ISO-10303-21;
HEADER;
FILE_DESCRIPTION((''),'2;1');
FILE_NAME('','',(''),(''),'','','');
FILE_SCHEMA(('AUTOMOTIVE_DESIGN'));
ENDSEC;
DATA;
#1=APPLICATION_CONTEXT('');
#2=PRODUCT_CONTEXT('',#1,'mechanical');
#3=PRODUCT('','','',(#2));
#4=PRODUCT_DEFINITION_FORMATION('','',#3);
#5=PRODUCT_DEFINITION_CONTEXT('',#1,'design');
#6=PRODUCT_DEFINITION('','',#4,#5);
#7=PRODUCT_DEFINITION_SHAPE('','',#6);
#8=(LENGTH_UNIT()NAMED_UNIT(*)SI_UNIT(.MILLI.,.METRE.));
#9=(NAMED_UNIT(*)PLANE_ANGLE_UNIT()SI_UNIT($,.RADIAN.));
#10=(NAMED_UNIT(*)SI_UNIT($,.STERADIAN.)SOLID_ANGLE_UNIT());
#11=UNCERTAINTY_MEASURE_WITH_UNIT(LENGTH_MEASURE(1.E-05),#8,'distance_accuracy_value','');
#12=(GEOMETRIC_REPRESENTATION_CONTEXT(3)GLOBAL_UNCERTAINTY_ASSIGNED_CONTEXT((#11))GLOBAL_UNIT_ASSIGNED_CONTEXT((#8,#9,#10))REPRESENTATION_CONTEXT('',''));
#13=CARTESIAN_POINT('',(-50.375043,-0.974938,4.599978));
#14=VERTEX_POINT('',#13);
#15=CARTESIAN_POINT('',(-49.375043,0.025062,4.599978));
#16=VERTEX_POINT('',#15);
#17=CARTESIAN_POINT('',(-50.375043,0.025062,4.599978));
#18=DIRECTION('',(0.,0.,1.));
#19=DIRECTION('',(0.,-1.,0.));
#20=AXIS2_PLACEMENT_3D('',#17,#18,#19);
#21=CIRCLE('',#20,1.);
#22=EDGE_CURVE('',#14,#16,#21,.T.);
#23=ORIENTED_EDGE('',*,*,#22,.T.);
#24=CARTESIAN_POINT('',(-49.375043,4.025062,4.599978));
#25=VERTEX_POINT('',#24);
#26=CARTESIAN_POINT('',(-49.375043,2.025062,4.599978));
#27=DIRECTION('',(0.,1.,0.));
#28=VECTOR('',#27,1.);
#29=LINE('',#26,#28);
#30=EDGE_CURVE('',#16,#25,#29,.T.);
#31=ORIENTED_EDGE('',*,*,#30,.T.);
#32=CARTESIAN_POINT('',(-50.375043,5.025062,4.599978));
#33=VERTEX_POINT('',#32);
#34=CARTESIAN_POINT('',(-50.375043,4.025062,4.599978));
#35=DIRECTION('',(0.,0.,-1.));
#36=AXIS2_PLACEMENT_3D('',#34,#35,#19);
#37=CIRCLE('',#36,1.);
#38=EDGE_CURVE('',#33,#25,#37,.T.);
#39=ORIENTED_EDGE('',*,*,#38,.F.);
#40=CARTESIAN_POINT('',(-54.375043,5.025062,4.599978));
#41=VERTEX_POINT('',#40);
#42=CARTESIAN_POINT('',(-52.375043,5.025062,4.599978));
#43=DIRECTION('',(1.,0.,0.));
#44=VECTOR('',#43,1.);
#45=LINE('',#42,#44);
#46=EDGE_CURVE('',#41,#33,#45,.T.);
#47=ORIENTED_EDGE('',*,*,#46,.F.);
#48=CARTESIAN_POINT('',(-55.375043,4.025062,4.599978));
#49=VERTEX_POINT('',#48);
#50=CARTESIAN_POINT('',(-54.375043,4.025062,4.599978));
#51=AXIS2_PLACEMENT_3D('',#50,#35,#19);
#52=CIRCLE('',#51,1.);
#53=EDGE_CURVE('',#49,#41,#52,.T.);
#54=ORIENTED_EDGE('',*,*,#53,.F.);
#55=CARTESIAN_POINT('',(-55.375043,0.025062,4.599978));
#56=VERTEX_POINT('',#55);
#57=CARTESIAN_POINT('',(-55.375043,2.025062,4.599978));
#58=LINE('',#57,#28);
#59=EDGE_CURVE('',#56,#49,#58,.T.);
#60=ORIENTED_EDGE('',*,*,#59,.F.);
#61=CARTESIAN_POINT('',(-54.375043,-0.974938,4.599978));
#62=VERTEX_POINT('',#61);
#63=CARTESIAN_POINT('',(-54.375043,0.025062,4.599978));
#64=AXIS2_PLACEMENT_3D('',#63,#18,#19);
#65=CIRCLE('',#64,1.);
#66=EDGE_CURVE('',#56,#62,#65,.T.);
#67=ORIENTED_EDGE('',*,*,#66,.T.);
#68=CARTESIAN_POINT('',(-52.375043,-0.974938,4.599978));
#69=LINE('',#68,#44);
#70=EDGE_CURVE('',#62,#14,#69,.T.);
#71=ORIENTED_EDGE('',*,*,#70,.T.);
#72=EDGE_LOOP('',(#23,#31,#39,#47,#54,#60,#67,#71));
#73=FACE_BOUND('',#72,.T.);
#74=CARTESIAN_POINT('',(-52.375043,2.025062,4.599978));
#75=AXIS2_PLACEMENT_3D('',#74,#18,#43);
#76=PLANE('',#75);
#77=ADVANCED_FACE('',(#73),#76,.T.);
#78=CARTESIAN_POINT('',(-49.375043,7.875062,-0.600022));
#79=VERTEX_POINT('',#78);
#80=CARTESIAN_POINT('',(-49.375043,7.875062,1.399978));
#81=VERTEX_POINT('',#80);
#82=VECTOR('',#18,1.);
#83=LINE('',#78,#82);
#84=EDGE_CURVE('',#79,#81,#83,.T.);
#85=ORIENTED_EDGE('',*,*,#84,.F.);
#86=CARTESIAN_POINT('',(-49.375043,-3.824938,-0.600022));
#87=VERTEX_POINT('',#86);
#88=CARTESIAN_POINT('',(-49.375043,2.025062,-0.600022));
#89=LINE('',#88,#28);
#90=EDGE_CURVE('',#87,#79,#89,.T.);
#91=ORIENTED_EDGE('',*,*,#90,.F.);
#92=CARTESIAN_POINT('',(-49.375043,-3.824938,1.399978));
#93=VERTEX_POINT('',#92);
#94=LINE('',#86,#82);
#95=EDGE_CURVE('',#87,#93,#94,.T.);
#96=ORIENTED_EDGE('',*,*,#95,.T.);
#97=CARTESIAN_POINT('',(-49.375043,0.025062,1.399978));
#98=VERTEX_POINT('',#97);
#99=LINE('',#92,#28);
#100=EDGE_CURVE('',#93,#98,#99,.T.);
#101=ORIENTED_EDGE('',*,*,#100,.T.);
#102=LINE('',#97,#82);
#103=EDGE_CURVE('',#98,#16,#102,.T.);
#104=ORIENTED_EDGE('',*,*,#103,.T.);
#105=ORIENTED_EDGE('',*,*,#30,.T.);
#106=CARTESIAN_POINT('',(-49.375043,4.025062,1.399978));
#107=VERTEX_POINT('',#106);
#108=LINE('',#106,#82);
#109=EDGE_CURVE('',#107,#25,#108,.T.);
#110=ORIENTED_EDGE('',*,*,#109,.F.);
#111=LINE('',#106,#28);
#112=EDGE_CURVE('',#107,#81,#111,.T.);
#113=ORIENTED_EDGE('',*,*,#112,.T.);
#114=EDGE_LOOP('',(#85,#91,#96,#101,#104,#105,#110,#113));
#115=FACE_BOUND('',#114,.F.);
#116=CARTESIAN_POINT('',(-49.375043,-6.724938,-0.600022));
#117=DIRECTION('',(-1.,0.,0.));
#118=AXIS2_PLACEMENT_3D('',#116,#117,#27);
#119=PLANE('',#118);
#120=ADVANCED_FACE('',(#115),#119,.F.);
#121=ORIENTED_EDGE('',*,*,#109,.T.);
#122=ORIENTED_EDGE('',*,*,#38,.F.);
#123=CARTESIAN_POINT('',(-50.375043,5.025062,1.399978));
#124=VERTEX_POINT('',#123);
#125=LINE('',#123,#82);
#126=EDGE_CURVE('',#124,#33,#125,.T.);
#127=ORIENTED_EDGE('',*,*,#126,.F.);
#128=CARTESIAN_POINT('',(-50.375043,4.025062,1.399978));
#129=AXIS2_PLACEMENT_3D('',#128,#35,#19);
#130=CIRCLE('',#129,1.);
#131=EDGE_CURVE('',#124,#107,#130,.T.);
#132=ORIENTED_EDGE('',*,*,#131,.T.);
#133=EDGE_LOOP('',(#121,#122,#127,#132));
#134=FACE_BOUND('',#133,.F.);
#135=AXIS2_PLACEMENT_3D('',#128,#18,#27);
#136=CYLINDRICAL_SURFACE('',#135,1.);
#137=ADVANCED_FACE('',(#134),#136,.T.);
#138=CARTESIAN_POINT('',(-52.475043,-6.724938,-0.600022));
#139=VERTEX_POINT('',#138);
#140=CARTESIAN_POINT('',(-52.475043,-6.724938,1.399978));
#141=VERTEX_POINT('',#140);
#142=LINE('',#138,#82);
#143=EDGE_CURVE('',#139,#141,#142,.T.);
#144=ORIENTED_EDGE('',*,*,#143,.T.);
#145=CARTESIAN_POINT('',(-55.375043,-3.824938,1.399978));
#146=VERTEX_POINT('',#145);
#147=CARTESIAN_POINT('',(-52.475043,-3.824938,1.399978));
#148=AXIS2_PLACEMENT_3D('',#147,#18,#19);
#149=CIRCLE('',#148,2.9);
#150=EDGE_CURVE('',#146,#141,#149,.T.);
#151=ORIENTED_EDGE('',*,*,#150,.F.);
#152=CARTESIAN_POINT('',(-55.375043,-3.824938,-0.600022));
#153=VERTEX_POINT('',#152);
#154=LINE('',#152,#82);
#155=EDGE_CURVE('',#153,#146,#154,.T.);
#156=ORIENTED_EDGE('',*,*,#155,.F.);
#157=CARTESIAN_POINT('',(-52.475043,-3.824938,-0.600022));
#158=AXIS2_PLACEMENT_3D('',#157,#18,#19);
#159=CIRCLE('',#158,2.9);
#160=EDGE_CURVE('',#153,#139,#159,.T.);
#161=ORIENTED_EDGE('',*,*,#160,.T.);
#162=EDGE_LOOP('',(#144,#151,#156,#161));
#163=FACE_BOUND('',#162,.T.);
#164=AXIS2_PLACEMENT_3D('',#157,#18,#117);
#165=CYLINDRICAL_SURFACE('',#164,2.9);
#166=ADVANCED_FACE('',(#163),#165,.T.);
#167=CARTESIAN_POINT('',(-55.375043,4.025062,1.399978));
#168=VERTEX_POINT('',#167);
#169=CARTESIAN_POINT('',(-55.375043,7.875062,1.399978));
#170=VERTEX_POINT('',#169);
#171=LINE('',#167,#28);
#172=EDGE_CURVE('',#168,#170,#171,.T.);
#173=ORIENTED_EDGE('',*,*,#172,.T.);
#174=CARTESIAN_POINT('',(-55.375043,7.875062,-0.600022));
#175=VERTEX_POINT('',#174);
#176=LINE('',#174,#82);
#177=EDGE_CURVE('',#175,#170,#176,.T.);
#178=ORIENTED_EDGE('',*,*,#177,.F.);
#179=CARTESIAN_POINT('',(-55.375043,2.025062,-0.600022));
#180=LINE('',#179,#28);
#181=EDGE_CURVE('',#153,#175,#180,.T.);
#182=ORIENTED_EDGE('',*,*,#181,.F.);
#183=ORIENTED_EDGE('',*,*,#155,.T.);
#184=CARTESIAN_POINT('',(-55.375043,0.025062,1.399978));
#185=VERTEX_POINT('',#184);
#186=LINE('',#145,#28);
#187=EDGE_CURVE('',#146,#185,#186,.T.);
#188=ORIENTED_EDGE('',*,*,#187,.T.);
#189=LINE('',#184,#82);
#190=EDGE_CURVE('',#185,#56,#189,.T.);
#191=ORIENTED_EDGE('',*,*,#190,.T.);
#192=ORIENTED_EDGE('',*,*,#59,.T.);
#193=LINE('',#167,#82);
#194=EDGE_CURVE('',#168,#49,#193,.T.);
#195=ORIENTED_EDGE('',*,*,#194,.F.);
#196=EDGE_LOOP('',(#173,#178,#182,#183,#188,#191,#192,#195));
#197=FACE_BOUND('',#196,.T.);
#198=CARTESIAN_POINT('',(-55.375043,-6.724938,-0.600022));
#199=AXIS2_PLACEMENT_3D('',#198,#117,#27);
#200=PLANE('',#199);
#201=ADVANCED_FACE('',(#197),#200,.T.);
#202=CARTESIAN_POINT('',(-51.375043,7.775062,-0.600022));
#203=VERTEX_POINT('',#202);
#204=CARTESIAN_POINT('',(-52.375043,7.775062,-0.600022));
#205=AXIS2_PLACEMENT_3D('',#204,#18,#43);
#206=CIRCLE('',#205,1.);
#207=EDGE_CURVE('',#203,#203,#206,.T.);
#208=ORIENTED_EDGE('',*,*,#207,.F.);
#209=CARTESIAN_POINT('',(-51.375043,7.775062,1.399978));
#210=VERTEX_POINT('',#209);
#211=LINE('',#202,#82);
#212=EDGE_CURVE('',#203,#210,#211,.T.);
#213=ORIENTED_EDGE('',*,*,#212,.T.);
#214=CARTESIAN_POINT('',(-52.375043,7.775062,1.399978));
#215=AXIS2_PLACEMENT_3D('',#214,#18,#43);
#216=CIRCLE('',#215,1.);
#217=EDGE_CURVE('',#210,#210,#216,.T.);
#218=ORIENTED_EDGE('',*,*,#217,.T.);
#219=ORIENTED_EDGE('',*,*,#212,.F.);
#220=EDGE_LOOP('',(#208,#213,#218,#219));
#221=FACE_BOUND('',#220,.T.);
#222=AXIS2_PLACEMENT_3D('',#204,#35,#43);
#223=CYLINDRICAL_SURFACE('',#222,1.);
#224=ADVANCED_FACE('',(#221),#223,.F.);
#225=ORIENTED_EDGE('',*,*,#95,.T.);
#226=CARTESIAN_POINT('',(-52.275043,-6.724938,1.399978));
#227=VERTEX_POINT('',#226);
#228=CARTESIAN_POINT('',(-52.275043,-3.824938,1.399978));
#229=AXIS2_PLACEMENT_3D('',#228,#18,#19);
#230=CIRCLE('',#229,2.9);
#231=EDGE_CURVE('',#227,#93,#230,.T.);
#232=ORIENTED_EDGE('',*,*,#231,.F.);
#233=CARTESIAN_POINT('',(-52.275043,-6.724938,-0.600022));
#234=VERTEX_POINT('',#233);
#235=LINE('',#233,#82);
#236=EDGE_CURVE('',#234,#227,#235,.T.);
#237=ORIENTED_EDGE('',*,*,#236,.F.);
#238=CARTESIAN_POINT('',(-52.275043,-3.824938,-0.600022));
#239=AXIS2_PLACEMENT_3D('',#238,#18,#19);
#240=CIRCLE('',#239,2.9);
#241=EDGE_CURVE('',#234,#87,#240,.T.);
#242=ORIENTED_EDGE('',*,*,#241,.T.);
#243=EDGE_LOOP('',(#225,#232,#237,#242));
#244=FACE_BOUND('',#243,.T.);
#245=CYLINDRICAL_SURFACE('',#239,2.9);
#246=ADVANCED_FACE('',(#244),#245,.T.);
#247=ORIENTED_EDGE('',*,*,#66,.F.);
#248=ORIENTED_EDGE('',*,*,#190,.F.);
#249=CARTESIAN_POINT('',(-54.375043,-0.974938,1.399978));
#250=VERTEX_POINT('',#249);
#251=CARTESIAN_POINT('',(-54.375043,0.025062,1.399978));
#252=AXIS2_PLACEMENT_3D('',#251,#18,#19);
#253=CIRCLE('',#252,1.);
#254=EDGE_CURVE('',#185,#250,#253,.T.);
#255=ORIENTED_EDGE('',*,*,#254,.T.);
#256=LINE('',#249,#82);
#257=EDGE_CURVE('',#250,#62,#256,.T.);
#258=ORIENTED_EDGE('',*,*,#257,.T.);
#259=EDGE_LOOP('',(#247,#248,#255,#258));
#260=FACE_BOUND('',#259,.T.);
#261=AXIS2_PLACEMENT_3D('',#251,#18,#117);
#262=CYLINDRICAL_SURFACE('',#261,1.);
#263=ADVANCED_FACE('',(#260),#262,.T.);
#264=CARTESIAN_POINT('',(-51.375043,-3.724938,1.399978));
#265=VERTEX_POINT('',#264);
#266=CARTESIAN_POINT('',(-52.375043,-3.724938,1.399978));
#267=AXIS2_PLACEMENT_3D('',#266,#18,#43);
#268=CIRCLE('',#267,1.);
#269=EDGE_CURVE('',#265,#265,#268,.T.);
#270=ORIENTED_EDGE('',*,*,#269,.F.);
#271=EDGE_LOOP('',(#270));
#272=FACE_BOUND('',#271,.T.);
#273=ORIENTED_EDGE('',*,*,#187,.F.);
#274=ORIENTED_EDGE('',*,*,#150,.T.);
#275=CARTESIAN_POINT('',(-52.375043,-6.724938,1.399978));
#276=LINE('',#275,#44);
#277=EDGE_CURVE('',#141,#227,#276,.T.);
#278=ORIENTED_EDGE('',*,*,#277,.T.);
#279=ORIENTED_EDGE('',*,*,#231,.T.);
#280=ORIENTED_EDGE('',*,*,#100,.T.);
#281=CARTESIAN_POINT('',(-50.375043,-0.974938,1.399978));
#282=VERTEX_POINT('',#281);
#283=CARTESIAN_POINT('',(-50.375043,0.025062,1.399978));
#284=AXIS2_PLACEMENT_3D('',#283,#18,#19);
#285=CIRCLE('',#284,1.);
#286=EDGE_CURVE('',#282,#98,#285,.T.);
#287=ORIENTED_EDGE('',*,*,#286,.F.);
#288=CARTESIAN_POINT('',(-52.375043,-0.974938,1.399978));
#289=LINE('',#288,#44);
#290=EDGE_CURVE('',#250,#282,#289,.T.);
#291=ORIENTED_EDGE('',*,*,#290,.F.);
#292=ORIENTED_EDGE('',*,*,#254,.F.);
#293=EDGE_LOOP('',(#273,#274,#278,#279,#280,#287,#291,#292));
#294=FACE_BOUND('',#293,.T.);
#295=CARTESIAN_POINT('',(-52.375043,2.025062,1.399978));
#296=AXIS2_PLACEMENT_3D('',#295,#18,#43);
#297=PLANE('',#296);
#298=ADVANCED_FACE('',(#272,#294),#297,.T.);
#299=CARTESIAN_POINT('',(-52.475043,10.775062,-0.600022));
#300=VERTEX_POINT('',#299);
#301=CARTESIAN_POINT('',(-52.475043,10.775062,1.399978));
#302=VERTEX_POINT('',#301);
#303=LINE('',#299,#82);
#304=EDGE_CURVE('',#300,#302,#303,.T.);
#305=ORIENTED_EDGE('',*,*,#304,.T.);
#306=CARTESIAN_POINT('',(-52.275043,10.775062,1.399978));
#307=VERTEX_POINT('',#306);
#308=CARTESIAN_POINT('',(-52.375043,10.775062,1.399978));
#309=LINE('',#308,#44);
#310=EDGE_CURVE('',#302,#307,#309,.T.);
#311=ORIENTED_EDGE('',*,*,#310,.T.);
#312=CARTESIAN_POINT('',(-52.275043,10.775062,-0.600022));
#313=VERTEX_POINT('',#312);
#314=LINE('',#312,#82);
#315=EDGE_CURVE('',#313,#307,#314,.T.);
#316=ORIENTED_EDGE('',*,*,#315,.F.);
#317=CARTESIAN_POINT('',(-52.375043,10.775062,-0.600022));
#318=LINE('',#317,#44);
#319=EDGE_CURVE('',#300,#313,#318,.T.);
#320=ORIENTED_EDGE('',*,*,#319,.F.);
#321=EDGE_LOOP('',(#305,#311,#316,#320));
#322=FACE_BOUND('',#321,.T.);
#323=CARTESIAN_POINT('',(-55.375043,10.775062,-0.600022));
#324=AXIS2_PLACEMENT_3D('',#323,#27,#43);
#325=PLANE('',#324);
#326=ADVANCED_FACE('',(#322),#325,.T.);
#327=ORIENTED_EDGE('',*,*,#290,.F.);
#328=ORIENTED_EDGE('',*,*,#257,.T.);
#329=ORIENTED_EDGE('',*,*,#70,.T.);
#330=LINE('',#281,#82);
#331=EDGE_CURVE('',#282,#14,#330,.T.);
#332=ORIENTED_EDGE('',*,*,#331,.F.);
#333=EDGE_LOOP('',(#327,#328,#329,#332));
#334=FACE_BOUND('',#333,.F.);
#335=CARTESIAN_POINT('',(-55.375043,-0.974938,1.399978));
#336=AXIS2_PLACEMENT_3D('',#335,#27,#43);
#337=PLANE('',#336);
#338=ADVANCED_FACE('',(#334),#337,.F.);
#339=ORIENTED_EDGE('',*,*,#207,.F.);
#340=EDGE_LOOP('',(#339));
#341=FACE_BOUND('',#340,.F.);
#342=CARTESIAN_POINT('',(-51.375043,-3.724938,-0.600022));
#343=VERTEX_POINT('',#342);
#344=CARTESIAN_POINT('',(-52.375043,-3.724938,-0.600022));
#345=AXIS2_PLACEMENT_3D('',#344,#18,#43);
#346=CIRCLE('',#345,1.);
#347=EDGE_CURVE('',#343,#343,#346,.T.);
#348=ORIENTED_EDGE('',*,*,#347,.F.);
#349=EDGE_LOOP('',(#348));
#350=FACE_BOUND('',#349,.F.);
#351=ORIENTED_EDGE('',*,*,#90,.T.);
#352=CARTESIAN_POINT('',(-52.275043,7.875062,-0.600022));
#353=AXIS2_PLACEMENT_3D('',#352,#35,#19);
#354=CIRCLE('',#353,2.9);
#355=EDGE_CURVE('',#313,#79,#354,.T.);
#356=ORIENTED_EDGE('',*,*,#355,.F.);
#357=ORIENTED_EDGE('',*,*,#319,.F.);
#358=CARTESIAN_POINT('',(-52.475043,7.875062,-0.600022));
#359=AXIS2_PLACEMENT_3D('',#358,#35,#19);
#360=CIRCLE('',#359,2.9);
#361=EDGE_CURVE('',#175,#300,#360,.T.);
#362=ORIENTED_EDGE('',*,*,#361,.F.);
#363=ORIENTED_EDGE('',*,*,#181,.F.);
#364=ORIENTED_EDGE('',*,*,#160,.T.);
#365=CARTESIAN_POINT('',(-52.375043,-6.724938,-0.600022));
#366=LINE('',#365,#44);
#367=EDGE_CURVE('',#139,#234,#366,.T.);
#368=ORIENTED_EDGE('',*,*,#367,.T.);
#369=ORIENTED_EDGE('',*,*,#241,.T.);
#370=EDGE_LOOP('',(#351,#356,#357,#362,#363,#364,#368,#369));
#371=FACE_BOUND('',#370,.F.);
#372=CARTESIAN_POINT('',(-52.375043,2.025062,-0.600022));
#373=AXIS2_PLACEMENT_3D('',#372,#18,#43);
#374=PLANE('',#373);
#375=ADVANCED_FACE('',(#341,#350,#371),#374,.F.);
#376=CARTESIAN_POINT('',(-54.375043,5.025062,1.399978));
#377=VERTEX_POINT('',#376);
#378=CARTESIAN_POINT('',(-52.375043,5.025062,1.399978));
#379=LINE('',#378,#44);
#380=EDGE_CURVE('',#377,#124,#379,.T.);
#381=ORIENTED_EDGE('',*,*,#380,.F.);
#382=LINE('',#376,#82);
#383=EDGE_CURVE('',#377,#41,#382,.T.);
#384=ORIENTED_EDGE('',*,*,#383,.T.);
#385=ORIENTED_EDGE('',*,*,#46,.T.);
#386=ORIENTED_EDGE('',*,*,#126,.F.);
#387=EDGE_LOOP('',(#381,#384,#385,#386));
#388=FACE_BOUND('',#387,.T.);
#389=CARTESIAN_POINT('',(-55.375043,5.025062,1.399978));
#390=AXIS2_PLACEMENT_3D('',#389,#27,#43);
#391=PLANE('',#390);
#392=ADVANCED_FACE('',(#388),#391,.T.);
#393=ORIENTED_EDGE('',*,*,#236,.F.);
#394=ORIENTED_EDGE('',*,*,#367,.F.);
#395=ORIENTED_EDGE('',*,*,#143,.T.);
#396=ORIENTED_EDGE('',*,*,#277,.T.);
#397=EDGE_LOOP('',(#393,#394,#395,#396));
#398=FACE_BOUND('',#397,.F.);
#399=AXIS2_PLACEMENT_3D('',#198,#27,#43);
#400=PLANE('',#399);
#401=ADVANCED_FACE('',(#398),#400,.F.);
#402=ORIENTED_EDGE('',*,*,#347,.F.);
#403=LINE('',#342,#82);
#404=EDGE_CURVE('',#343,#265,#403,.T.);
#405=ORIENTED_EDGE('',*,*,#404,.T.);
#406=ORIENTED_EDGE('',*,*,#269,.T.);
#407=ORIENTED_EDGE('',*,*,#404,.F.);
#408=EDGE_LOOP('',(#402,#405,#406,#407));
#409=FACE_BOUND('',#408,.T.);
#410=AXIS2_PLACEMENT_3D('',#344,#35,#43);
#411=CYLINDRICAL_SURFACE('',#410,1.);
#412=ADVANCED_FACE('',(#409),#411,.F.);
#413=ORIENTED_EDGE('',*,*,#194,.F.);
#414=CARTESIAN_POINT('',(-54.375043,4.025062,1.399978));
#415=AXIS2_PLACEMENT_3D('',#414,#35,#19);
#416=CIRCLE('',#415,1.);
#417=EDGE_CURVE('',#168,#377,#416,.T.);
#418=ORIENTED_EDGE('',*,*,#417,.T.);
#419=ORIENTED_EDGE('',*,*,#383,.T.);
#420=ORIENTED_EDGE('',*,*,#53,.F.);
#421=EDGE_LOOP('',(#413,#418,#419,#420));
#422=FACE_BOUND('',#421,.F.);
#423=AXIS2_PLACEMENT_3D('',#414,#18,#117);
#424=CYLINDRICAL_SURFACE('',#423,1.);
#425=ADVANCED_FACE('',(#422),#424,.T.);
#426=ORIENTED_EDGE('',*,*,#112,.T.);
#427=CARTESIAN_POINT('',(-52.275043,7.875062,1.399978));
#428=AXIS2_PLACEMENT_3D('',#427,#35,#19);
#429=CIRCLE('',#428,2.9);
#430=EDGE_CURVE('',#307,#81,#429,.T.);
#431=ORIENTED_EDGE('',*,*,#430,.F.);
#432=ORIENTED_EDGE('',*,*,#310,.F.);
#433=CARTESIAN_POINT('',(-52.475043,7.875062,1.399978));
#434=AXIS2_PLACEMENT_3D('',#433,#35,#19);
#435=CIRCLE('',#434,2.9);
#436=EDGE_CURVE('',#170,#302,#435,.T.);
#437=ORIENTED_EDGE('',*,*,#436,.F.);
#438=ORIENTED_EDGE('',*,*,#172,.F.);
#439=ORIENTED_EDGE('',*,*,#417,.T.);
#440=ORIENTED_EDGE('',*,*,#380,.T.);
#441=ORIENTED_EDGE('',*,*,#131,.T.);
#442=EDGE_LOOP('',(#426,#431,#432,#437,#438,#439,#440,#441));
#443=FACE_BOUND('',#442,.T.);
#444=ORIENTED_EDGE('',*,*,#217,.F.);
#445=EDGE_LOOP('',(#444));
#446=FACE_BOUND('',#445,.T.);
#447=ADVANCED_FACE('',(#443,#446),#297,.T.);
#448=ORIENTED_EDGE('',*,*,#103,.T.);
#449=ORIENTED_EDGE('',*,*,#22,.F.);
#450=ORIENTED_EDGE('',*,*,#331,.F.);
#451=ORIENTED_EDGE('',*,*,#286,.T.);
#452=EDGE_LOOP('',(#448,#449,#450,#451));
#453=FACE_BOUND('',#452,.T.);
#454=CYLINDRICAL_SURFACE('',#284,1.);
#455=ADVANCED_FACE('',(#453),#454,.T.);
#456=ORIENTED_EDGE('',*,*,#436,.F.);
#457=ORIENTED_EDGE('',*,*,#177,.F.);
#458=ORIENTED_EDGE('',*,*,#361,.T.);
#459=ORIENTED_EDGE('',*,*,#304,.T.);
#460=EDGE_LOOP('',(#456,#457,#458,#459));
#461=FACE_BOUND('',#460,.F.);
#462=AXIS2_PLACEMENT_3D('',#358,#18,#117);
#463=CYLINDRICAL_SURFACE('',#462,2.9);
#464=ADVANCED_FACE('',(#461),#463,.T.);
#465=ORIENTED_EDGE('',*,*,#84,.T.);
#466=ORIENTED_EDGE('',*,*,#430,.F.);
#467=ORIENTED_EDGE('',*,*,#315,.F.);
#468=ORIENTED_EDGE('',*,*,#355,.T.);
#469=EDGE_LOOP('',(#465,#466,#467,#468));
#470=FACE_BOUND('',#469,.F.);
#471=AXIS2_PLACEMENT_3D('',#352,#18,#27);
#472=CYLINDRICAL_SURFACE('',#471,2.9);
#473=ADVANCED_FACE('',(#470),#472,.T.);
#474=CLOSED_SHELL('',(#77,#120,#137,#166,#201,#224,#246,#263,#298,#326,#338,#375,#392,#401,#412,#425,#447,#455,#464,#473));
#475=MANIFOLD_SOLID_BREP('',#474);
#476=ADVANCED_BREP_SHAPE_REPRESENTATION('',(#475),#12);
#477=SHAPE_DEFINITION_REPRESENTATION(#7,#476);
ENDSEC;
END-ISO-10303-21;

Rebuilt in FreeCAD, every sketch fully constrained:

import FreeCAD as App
import Part
import Sketcher
Q = App.Units.Quantity


def edges_at(feature, points):
    """Names of the edges that pass closest to the given points."""
    edges = feature.Shape.Edges
    near = lambda p: min(range(len(edges)), key=lambda i: edges[i].distToShape(Part.Vertex(*p))[0])
    return sorted({f"Edge{near(p) + 1}" for p in points})


def add_polygon(sketch, points):
    """Adds a closed chain of lines whose ends are joined by coincident constraints."""
    first, n = sketch.GeometryCount, len(points)
    for a, b in zip(points, points[1:] + points[:1]):
        sketch.addGeometry(Part.LineSegment(App.Vector(*a, 0), App.Vector(*b, 0)), False)
    for i in range(n):
        sketch.addConstraint(Sketcher.Constraint("Coincident", first + i, 2, first + (i + 1) % n, 1))

doc = App.newDocument("Part")
body = doc.addObject("PartDesign::Body", "Body")

# Sketch on XY plane
sketch1 = doc.addObject("Sketcher::SketchObject", "Sketch")
body.addObject(sketch1)
sketch1.AttachmentSupport = (doc.XY_Plane, [""])
sketch1.MapMode = "FlatFace"
sketch1.AttachmentOffset = App.Placement(App.Vector(0, 0, -0.600022), App.Rotation())
add_polygon(sketch1, [(-55.4, 10.8), (-55.4, -6.7), (-49.4, -6.7), (-49.4, 10.8)])  # lines 0-3
sketch1.addGeometry(Part.Circle(App.Vector(-52.4, -3.7, 0), App.Vector(0, 0, 1), 1), False)  # 4
sketch1.addGeometry(Part.Circle(App.Vector(-52.4, 7.8, 0), App.Vector(0, 0, 1), 1), False)  # 5
sketch1.addConstraint([
    Sketcher.Constraint("Vertical", 0),
    Sketcher.Constraint("Horizontal", 1),
    Sketcher.Constraint("Vertical", 2),
    Sketcher.Constraint("Horizontal", 3),
    Sketcher.Constraint("Equal", 4, 5),
    Sketcher.Constraint("Vertical", 4, 3, 5, 3),
    Sketcher.Constraint("Diameter", 4, Q("2 mm")),
    Sketcher.Constraint("DistanceX", 1, 1, 1, 2, Q("6 mm")),
    Sketcher.Constraint("DistanceY", 0, 2, 0, 1, Q("17.5 mm")),
    Sketcher.Constraint("DistanceX", 0, 2, 4, 3, Q("3 mm")),
    Sketcher.Constraint("DistanceY", 0, 2, 4, 3, Q("3 mm")),
    Sketcher.Constraint("DistanceY", 5, 3, 2, 2, Q("3 mm")),
    Sketcher.Constraint("DistanceX", 4, 3, -1, 1, Q("52.375043 mm")),
    Sketcher.Constraint("DistanceY", 4, 3, -1, 1, Q("3.724938 mm")),
])
pad1 = doc.addObject("PartDesign::Pad", "Pad")
body.addObject(pad1)
pad1.Profile = sketch1
pad1.Length = 2

# Sketch on XY plane
sketch2 = doc.addObject("Sketcher::SketchObject", "Sketch001")
body.addObject(sketch2)
sketch2.AttachmentSupport = (doc.XY_Plane, [""])
sketch2.MapMode = "FlatFace"
sketch2.AttachmentOffset = App.Placement(App.Vector(0, 0, 1.399978), App.Rotation())
add_polygon(sketch2, [(-55, 5), (-55, -1), (-49, -1), (-49, 5)])  # lines 0-3
sketch2.addConstraint([
    Sketcher.Constraint("Vertical", 0),
    Sketcher.Constraint("Horizontal", 1),
    Sketcher.Constraint("Vertical", 2),
    Sketcher.Constraint("Horizontal", 3),
    Sketcher.Constraint("Equal", 3, 0),
    Sketcher.Constraint("DistanceX", 1, 1, 1, 2, Q("6 mm")),
    Sketcher.Constraint("DistanceX", 0, 2, -1, 1, Q("55.375043 mm")),
    Sketcher.Constraint("DistanceY", 0, 2, -1, 1, Q("0.974938 mm")),
])
pad2 = doc.addObject("PartDesign::Pad", "Pad001")
body.addObject(pad2)
pad2.Profile = sketch2
pad2.Length = 3.2
doc.recompute()

fillet = doc.addObject("PartDesign::Fillet", "Fillet")
body.addObject(fillet)
fillet.Base = (pad2, edges_at(pad2, [
    (-49.375, 10.775, 0.4),
    (-55.375, 10.775, 0.4),
    (-49.375, -6.725, 0.4),
    (-55.375, -6.725, 0.4),
]))
fillet.Radius = 2.9
doc.recompute()

fillet2 = doc.addObject("PartDesign::Fillet", "Fillet001")
body.addObject(fillet2)
fillet2.Base = (fillet, edges_at(fillet, [
    (-49.375, -0.975, 3),
    (-55.375, -0.975, 3),
    (-49.375, 5.025, 3),
    (-55.375, 5.025, 3),
]))
fillet2.Radius = 1

doc.recompute()
